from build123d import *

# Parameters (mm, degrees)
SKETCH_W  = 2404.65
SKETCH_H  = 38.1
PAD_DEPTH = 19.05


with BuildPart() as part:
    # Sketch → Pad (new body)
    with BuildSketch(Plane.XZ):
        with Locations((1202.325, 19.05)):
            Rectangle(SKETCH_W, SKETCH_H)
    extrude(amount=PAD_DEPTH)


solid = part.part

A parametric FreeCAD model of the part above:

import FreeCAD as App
import Part
import Sketcher
Q = App.Units.Quantity

doc = App.newDocument("Part")
params = doc.addObject("Spreadsheet::Sheet", "Params")
for row, (alias, value) in enumerate([
    ("sketch1_height", "1.5 in"),
    ("pad1_length", "0.75 in"),
], start=1):
    params.set(f"A{row}", alias)
    params.set(f"B{row}", "=" + value)
    params.setAlias(f"B{row}", alias)

body = doc.addObject("PartDesign::Body", "Body")

# Sketch on XZ plane
sketch1 = body.newObject("Sketcher::SketchObject", "Sketch")
sketch1.AttachmentSupport = (doc.getObject("XZ_Plane"), [""])
sketch1.MapMode = "FlatFace"
sketch1.addGeometry(Part.LineSegment(App.Vector(0, 38, 0), App.Vector(0, 0, 0)), False)
sketch1.addGeometry(Part.LineSegment(App.Vector(0, 0, 0), App.Vector(2405, 0, 0)), False)
sketch1.addGeometry(Part.LineSegment(App.Vector(2405, 0, 0), App.Vector(2405, 38, 0)), False)
sketch1.addGeometry(Part.LineSegment(App.Vector(2405, 38, 0), App.Vector(0, 38, 0)), False)
sketch1.addConstraint(Sketcher.Constraint("Coincident", 0, 2, 1, 1))
sketch1.addConstraint(Sketcher.Constraint("Coincident", 1, 2, 2, 1))
sketch1.addConstraint(Sketcher.Constraint("Coincident", 2, 2, 3, 1))
sketch1.addConstraint(Sketcher.Constraint("Coincident", 3, 2, 0, 1))
sketch1.addConstraint(Sketcher.Constraint("Vertical", 0))
sketch1.addConstraint(Sketcher.Constraint("Horizontal", 1))
sketch1.addConstraint(Sketcher.Constraint("Vertical", 2))
sketch1.addConstraint(Sketcher.Constraint("Horizontal", 3))
sketch1.addConstraint(Sketcher.Constraint("Coincident", 0, 2, -1, 1))
sketch1.addConstraint(Sketcher.Constraint("DistanceY", 0, 2, 0, 1, Q("1.5 in")))
sketch1.addConstraint(Sketcher.Constraint("DistanceX", 1, 1, 1, 2, Q("2404.65 mm")))
sketch1.setExpression("Constraints[9]", "Params.sketch1_height")
pad1 = body.newObject("PartDesign::Pad", "Pad")
pad1.Profile = sketch1
pad1.setExpression("Length", "Params.pad1_length")

doc.recompute()
